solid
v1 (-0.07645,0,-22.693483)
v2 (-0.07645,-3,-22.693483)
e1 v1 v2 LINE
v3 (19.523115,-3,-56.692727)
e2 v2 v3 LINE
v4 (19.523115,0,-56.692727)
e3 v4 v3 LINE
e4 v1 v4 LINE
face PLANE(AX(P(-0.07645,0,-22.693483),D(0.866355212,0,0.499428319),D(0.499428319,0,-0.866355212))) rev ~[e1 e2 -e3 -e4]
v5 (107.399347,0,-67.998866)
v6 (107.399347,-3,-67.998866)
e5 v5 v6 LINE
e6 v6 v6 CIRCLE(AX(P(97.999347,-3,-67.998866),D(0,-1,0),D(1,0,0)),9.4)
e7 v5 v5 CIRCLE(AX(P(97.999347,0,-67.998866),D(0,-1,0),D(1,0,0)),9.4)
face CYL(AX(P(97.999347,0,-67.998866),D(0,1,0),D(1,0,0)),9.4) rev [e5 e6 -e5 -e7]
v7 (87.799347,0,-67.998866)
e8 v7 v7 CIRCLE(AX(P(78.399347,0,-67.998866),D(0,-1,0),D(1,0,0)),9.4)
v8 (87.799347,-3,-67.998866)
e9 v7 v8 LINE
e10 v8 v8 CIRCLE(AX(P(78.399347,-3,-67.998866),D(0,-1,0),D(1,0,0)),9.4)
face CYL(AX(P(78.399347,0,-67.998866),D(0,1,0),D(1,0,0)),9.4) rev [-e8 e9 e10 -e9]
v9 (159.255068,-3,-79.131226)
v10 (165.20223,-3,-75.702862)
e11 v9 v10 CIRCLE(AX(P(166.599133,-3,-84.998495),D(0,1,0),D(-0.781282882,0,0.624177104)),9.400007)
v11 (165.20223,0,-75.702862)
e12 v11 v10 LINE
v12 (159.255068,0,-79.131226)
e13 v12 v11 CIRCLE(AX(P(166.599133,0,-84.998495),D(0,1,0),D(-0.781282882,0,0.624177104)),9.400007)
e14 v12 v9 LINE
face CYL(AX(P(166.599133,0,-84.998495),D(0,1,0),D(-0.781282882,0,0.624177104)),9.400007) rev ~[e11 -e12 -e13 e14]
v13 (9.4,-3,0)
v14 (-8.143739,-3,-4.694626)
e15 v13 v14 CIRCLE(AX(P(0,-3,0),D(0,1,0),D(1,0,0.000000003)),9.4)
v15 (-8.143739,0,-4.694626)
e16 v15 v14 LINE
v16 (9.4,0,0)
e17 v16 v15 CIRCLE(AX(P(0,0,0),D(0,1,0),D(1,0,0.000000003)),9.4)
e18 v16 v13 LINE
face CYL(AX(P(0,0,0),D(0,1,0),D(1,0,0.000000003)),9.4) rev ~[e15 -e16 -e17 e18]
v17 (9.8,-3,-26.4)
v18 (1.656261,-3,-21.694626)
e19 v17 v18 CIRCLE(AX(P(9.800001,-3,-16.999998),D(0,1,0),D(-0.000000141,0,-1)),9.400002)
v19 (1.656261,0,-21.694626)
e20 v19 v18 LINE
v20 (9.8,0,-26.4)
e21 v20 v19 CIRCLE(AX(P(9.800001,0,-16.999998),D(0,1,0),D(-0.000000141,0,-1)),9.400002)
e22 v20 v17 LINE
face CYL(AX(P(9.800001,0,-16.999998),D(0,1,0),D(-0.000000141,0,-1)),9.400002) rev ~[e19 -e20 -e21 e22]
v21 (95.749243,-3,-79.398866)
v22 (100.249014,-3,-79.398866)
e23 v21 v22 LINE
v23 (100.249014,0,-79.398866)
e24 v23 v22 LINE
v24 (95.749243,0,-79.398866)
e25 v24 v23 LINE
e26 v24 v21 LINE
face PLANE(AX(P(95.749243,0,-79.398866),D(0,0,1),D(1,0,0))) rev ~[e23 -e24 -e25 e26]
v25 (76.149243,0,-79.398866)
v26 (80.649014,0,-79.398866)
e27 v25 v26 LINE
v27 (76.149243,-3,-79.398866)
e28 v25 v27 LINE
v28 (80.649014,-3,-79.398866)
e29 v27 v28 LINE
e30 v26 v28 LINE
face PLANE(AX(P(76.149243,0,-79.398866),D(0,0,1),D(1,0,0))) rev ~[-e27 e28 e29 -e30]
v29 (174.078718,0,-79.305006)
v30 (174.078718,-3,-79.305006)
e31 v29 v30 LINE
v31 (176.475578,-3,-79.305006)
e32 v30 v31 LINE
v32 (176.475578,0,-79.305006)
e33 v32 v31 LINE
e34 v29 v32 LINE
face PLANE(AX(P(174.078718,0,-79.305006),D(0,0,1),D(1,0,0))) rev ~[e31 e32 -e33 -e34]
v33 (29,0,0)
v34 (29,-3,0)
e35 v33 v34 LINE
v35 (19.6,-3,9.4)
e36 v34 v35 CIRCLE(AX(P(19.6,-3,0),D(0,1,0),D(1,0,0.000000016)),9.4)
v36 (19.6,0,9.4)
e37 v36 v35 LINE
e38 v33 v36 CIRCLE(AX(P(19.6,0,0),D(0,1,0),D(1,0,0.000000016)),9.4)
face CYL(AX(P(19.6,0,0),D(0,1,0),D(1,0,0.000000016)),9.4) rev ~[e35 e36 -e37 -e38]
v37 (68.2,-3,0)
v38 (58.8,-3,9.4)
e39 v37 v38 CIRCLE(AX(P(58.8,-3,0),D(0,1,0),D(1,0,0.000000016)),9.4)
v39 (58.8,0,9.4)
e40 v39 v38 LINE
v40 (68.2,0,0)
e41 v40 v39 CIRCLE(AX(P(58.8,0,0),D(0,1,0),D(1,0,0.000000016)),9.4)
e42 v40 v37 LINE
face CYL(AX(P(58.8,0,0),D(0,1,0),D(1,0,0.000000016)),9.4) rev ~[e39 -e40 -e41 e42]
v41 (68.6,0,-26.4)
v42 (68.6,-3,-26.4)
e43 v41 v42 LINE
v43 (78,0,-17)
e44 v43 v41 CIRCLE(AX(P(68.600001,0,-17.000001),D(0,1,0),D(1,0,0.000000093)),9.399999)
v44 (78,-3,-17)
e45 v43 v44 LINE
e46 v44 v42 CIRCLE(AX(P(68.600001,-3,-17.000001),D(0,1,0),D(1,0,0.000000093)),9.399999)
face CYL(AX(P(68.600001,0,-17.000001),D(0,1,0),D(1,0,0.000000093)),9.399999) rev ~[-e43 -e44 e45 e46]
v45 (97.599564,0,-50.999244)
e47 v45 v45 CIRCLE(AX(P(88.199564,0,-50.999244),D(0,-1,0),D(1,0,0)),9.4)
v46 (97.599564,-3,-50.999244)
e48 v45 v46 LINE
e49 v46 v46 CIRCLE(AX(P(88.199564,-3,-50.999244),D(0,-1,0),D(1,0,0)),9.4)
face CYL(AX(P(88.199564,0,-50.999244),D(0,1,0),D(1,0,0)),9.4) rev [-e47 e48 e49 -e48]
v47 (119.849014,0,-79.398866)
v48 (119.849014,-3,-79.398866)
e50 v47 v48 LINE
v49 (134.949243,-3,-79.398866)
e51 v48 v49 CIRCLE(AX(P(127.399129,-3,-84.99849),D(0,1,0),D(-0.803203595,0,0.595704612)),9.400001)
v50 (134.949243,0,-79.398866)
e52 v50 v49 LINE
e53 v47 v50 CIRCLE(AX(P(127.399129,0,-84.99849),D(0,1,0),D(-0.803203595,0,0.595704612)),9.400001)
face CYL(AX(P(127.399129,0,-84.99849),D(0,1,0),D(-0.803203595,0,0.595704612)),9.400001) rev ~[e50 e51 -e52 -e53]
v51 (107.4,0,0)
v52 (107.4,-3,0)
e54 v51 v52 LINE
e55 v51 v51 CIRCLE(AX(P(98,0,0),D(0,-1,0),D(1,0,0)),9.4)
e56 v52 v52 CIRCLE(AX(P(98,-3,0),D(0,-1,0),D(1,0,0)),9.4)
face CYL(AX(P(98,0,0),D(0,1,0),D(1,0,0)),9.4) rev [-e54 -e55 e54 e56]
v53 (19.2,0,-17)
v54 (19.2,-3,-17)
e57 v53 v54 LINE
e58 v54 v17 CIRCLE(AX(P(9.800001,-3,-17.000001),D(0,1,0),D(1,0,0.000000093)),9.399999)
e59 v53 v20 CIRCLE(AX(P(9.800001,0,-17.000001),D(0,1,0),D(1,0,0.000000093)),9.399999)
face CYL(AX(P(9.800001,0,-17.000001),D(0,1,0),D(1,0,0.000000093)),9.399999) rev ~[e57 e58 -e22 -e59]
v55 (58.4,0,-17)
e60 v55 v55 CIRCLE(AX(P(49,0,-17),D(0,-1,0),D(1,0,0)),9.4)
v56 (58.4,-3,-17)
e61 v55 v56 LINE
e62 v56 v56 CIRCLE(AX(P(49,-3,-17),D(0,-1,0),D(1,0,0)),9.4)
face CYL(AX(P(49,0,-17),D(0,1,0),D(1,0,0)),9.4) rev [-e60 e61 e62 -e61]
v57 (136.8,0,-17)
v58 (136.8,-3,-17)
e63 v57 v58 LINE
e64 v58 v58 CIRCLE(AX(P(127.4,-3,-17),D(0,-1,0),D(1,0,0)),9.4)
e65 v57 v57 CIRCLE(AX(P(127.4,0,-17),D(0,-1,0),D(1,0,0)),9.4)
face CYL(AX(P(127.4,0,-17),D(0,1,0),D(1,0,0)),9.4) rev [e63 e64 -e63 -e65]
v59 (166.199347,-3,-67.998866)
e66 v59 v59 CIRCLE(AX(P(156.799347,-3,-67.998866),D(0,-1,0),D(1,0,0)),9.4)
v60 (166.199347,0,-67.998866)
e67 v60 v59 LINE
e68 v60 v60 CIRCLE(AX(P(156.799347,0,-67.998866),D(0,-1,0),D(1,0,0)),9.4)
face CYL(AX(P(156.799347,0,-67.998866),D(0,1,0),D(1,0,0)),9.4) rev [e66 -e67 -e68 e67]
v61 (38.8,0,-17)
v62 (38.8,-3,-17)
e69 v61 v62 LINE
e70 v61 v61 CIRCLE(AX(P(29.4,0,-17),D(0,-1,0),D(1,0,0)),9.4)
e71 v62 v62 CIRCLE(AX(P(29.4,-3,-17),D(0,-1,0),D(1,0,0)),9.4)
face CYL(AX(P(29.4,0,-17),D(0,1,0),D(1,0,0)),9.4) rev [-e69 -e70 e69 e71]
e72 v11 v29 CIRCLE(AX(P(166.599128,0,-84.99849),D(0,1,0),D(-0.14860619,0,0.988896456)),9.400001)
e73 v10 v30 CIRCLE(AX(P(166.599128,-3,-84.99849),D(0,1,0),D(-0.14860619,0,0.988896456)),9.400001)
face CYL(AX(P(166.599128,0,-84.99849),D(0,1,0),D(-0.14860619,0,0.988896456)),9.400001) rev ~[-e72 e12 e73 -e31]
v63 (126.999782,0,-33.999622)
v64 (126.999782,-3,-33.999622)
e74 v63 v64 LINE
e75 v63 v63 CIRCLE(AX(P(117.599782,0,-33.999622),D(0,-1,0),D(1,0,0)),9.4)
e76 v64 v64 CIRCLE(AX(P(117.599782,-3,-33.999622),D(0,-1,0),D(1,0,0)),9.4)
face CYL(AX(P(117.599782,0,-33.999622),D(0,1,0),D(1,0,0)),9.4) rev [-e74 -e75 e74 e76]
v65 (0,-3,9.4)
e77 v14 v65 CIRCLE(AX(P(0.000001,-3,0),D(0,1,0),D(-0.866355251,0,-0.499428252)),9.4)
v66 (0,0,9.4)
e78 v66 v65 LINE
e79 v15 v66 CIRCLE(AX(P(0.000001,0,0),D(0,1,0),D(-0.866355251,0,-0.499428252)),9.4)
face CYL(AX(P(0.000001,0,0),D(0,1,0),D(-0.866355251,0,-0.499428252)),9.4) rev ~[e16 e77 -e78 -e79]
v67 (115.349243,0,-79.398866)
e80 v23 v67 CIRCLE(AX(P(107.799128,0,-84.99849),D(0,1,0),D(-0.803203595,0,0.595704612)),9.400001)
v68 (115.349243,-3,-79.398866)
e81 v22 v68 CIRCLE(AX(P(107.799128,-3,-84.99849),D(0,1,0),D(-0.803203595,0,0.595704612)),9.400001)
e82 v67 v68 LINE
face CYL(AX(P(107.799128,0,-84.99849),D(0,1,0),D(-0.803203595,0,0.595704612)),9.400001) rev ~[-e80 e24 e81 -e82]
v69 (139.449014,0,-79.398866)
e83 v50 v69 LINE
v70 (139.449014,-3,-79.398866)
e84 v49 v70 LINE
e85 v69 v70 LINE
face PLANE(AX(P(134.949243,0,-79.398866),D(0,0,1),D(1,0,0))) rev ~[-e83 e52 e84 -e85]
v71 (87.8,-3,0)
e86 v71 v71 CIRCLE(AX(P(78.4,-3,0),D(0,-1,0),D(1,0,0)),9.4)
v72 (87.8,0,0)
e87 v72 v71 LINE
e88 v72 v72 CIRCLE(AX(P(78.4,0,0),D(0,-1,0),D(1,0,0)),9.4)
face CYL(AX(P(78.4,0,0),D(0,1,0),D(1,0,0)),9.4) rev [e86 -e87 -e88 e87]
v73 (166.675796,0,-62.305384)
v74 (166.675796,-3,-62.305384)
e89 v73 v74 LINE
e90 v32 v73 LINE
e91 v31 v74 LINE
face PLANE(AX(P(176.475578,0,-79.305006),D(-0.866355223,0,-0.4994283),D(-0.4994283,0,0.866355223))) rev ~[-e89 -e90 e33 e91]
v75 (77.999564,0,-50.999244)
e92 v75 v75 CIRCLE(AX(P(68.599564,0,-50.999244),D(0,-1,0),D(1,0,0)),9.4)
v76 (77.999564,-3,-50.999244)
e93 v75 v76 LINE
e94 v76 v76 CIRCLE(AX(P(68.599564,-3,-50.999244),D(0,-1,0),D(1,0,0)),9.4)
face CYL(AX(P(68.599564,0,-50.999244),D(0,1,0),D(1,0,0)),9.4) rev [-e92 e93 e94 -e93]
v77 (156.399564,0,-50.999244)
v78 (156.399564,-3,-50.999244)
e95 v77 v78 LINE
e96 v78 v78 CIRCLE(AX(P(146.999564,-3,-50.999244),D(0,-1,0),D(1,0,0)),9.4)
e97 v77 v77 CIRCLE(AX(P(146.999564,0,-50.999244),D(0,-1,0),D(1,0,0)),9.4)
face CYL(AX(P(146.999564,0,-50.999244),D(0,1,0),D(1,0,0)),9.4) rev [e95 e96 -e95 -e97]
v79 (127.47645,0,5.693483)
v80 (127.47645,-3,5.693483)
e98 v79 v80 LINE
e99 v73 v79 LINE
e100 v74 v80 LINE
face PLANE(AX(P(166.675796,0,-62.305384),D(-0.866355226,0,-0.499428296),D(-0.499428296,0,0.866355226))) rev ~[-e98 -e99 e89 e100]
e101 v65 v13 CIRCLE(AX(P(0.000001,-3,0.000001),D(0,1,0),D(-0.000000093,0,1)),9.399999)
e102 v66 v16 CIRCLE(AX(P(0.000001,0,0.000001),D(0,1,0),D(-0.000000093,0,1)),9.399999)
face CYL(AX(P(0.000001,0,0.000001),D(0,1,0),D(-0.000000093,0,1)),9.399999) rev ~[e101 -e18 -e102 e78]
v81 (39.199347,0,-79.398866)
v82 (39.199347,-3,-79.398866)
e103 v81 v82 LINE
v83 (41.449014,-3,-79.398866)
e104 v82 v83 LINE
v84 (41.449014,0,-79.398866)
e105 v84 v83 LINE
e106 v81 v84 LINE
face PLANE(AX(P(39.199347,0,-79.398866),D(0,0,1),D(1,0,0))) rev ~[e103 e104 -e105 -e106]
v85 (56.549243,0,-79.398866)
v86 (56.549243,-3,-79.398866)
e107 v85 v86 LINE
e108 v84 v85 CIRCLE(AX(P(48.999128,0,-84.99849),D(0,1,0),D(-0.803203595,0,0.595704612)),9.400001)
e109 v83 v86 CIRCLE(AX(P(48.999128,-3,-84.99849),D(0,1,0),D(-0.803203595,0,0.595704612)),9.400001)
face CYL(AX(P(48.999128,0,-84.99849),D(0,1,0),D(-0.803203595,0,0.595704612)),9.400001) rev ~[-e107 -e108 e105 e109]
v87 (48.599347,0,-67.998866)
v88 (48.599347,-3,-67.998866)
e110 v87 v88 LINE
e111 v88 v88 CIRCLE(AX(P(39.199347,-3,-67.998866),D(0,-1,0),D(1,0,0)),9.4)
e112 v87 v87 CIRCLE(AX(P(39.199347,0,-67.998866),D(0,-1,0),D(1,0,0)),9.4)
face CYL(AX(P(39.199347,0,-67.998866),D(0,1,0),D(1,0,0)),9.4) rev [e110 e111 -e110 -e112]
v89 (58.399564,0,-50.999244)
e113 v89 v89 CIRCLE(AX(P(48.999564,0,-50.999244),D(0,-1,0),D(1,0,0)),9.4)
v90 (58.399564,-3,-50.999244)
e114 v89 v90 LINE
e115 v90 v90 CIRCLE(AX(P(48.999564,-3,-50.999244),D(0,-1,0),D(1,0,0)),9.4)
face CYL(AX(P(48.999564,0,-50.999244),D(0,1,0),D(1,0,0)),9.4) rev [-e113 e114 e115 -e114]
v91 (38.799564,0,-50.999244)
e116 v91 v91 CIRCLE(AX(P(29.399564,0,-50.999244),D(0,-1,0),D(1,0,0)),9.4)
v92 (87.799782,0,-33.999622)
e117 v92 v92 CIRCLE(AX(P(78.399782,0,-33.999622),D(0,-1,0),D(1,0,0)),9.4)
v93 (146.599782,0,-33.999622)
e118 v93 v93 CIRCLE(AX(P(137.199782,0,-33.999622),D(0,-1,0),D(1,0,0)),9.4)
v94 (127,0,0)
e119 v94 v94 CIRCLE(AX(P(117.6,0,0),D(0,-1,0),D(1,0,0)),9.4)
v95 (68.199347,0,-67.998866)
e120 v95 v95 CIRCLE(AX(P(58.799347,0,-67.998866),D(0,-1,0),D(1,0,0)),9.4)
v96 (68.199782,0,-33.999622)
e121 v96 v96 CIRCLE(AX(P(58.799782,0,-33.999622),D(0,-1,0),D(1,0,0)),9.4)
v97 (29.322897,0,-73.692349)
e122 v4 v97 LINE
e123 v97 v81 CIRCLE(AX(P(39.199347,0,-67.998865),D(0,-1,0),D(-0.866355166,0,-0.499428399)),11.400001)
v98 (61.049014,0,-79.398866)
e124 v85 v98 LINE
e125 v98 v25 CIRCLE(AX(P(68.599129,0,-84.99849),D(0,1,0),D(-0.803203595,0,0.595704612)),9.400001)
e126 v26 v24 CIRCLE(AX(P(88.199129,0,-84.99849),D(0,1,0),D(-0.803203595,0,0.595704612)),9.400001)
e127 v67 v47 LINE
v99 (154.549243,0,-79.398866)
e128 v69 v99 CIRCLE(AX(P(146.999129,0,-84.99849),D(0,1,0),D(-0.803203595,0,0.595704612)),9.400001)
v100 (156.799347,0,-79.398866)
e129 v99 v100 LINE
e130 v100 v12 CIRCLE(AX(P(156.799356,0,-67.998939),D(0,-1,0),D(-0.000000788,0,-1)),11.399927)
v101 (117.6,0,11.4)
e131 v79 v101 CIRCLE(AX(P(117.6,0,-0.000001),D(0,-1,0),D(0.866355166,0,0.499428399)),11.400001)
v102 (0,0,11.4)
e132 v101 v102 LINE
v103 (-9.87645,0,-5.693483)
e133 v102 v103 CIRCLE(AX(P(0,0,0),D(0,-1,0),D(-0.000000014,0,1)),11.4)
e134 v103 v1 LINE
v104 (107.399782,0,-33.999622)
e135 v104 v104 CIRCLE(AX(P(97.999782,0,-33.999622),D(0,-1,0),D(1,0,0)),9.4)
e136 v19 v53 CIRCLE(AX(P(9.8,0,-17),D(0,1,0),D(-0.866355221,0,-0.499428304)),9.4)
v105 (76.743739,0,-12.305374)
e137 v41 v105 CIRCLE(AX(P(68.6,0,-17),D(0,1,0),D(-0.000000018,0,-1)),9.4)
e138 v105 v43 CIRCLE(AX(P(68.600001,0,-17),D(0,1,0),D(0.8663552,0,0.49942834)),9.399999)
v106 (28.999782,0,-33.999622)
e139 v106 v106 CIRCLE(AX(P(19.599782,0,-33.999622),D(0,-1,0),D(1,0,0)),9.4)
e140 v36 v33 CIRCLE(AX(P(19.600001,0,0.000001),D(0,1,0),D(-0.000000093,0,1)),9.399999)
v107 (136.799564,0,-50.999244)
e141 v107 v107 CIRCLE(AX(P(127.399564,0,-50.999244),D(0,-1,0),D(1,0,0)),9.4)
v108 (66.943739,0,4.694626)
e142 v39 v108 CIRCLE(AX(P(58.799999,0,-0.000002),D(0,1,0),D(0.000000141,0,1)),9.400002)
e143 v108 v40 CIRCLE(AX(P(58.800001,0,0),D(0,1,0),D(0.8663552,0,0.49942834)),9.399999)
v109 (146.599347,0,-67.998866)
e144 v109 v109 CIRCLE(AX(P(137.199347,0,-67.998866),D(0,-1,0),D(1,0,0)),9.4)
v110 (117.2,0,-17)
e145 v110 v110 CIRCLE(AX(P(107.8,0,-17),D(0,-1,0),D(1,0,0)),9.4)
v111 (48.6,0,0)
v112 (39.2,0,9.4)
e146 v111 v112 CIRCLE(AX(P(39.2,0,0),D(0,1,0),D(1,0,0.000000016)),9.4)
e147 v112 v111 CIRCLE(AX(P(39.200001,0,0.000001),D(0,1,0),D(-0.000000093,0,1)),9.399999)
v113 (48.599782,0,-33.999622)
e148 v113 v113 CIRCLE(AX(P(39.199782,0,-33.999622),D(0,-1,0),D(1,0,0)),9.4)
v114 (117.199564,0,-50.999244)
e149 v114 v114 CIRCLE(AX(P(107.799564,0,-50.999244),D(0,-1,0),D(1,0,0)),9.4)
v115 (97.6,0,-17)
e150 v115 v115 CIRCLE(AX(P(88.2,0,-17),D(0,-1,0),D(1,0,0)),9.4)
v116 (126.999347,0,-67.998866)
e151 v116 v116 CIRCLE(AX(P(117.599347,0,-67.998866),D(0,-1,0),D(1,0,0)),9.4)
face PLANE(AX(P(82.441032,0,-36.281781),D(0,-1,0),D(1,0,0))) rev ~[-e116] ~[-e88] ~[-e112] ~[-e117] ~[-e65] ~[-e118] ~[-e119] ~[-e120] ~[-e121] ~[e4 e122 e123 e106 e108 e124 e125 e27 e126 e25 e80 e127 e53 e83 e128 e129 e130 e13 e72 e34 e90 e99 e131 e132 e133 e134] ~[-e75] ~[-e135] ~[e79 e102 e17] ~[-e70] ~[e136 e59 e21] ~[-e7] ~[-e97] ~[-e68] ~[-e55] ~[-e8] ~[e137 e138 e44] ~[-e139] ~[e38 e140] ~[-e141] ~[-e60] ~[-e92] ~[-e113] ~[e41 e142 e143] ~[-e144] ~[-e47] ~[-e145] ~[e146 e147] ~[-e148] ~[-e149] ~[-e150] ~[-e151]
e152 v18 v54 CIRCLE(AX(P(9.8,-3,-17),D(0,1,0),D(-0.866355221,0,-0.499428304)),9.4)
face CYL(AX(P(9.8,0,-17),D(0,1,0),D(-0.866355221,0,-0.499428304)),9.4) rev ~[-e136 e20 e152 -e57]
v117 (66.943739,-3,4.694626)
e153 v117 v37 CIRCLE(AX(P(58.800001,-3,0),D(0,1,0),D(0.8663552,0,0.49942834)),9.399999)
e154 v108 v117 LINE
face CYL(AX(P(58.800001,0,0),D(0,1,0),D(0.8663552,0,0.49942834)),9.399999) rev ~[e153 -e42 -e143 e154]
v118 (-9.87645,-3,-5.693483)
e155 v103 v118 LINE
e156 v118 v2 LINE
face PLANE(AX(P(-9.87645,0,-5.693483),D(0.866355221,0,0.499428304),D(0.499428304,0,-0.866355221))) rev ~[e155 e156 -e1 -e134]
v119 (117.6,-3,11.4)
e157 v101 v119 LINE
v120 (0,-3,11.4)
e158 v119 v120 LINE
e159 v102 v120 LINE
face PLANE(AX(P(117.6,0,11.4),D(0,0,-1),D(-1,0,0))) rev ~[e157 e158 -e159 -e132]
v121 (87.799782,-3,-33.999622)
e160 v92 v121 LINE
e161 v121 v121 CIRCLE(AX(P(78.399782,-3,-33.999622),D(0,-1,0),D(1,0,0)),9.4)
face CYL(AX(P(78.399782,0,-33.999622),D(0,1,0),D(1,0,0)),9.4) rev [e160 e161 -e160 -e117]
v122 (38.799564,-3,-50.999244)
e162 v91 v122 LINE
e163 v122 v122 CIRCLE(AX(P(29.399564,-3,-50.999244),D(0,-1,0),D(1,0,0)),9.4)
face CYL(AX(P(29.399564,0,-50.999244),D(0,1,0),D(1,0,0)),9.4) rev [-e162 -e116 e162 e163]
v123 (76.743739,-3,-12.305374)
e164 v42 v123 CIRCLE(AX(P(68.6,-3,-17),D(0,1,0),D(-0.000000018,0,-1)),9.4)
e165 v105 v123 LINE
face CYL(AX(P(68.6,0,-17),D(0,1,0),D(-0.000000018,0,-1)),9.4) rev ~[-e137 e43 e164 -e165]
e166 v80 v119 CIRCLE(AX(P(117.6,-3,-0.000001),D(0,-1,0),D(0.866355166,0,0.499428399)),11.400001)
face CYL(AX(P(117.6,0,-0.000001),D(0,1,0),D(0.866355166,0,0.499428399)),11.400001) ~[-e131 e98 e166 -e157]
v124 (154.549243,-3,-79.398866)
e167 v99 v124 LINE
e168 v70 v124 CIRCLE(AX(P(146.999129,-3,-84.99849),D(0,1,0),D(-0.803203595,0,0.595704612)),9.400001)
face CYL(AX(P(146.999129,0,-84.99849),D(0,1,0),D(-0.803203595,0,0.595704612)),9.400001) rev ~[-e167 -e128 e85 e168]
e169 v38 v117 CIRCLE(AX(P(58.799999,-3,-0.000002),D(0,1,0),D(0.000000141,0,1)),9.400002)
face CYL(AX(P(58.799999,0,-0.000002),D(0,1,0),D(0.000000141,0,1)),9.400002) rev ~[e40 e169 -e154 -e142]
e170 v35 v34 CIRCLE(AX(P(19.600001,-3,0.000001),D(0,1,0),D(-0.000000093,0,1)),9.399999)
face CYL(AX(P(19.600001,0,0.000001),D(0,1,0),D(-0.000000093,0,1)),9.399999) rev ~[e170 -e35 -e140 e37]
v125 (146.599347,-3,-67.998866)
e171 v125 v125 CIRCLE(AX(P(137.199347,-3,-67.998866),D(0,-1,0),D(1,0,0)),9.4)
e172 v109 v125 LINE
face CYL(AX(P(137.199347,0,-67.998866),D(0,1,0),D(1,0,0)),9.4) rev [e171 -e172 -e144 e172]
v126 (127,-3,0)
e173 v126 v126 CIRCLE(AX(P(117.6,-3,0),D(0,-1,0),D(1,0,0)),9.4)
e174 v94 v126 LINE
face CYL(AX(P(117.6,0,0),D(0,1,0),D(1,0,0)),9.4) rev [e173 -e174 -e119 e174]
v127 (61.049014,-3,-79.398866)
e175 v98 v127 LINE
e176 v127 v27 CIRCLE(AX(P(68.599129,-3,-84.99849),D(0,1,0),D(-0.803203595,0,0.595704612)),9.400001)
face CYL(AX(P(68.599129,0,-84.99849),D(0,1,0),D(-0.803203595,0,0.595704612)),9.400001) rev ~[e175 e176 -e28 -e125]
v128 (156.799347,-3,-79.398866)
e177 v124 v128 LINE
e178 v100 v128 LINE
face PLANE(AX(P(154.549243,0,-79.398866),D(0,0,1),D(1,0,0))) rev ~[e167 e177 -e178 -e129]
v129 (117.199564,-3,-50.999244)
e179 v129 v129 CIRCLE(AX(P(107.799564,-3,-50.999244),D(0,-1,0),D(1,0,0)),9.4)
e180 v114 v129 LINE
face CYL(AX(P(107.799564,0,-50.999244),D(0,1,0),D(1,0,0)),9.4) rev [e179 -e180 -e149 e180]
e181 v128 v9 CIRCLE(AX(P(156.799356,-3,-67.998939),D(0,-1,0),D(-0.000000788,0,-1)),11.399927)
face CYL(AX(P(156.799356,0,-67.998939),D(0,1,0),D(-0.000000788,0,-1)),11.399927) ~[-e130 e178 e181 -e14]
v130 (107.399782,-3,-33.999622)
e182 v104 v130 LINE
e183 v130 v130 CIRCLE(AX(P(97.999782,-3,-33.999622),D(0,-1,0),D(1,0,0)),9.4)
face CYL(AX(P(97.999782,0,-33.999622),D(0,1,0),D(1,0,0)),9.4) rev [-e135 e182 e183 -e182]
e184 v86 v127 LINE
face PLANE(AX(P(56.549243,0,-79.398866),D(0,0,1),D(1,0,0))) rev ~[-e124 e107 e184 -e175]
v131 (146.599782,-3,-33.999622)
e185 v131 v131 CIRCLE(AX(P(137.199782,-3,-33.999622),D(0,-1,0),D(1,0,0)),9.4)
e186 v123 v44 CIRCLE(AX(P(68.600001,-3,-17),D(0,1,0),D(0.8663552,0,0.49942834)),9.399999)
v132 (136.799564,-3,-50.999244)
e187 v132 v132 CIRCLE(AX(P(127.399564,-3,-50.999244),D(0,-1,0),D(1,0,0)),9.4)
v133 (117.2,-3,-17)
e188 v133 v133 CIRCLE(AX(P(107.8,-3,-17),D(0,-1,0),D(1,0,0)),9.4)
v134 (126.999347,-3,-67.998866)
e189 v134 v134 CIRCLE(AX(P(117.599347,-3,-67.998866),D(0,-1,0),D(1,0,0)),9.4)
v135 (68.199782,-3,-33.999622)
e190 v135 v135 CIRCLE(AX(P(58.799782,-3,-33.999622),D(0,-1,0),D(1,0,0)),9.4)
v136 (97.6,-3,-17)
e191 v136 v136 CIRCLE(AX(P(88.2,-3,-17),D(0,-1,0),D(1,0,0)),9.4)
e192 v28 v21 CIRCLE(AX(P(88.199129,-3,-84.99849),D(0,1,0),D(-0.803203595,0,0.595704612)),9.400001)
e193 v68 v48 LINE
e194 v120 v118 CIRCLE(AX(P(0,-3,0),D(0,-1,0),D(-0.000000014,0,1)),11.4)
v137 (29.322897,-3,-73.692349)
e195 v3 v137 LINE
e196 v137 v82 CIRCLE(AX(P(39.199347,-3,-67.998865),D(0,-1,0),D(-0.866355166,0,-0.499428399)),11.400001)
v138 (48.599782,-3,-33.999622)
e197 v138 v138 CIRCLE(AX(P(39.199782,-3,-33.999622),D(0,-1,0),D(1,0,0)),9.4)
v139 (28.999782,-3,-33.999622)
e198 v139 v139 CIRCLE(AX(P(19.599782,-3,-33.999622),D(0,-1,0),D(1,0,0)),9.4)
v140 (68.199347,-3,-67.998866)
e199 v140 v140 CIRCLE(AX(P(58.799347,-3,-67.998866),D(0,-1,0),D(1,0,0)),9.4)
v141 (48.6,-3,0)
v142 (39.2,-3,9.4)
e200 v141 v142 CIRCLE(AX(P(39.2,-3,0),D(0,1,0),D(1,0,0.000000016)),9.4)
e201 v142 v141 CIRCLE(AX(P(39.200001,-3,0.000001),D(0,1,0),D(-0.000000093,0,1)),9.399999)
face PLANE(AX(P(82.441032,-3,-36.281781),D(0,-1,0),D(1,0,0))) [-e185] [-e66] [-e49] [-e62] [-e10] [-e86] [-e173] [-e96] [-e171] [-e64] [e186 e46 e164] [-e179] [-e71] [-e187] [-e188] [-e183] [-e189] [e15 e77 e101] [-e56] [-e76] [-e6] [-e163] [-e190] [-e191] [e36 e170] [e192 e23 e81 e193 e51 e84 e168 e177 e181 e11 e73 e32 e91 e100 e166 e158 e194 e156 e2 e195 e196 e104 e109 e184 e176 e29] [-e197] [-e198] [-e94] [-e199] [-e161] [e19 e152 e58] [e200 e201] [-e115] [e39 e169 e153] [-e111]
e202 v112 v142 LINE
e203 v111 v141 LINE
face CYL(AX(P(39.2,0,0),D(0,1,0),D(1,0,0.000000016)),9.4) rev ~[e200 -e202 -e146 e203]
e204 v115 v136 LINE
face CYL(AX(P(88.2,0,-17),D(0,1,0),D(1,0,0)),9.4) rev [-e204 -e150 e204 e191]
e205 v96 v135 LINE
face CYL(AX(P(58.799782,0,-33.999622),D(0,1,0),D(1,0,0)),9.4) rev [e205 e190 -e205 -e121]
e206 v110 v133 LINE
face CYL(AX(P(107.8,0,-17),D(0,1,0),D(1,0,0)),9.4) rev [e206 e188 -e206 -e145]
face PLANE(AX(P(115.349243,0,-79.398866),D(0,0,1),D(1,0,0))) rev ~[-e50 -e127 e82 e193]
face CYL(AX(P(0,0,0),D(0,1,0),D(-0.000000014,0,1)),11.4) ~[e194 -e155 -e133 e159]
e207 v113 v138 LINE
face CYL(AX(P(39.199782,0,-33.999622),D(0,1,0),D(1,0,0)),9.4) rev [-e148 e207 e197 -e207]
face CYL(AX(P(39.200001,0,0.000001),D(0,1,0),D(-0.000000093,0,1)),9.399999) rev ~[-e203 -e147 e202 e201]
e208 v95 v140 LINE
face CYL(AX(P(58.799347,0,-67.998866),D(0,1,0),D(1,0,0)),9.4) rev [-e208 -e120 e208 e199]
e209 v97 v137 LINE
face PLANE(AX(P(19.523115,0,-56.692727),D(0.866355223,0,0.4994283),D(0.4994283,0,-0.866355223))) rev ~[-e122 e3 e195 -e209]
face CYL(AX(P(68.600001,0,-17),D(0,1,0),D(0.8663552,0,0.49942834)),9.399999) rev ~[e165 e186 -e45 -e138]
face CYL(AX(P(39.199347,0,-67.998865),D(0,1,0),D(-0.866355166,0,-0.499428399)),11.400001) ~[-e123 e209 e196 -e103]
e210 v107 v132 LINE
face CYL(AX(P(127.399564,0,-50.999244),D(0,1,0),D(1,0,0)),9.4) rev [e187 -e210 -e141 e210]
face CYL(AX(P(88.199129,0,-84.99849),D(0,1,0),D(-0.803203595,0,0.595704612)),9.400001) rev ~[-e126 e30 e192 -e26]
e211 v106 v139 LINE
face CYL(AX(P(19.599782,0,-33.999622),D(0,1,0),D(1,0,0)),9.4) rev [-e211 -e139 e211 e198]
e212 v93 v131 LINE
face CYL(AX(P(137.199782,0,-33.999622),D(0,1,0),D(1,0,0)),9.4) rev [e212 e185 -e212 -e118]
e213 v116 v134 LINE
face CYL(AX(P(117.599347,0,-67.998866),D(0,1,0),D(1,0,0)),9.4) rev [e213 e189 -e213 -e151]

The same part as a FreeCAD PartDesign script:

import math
import FreeCAD as App
import Part
import Sketcher
from FreeCAD import Vector

doc = App.newDocument("Part")
body = doc.addObject("PartDesign::Body", "Body")

sketch1 = doc.addObject("Sketcher::SketchObject", "Sketch")
body.addObject(sketch1)
sketch1.AttachmentSupport = (doc.XZ_Plane, [""])
sketch1.MapMode = "FlatFace"
sketch1.addGeometry([
    Part.ArcOfCircle(Part.Circle(Vector(0, 0, 0), Vector(0, 0, 1), 11.4), math.radians(90), math.radians(210)),
    Part.LineSegment(Vector(-9.9, -5.7, 0), Vector(-0.1, -22.7, 0)),
    Part.LineSegment(Vector(-0.1, -22.7, 0), Vector(19.5, -56.7, 0)),
    Part.LineSegment(Vector(19.5, -56.7, 0), Vector(29.3, -73.7, 0)),
    Part.ArcOfCircle(Part.Circle(Vector(39.2, -68, 0), Vector(0, 0, 1), 11.4), math.radians(-150), math.radians(-90)),
    Part.LineSegment(Vector(39.2, -79.4, 0), Vector(41.4, -79.4, 0)),
    Part.ArcOfCircle(Part.Circle(Vector(49, -85, 0), Vector(0, 0, 1), 9.4), math.radians(37), math.radians(143)),
    Part.LineSegment(Vector(56.5, -79.4, 0), Vector(61, -79.4, 0)),
    Part.ArcOfCircle(Part.Circle(Vector(68.6, -85, 0), Vector(0, 0, 1), 9.4), math.radians(37), math.radians(143)),
    Part.LineSegment(Vector(76.1, -79.4, 0), Vector(80.6, -79.4, 0)),
    Part.ArcOfCircle(Part.Circle(Vector(88.2, -85, 0), Vector(0, 0, 1), 9.4), math.radians(37), math.radians(143)),
    Part.LineSegment(Vector(95.7, -79.4, 0), Vector(100.2, -79.4, 0)),
    Part.ArcOfCircle(Part.Circle(Vector(107.8, -85, 0), Vector(0, 0, 1), 9.4), math.radians(37), math.radians(143)),
    Part.LineSegment(Vector(115.3, -79.4, 0), Vector(119.8, -79.4, 0)),
    Part.ArcOfCircle(Part.Circle(Vector(127.4, -85, 0), Vector(0, 0, 1), 9.4), math.radians(37), math.radians(143)),
    Part.LineSegment(Vector(134.9, -79.4, 0), Vector(139.4, -79.4, 0)),
    Part.ArcOfCircle(Part.Circle(Vector(147, -85, 0), Vector(0, 0, 1), 9.4), math.radians(37), math.radians(143)),
    Part.LineSegment(Vector(154.5, -79.4, 0), Vector(156.8, -79.4, 0)),
    Part.ArcOfCircle(Part.Circle(Vector(156.8, -68, 0), Vector(0, 0, 1), 11.4), math.radians(-90), math.radians(-77.56)),
    Part.ArcOfCircle(Part.Circle(Vector(166.6, -85, 0), Vector(0, 0, 1), 9.4), math.radians(99), math.radians(141)),
    Part.ArcOfCircle(Part.Circle(Vector(166.6, -85, 0), Vector(0, 0, 1), 9.4), math.radians(37), math.radians(99)),
    Part.LineSegment(Vector(174.1, -79.3, 0), Vector(176.5, -79.3, 0)),
    Part.LineSegment(Vector(176.5, -79.3, 0), Vector(166.7, -62.3, 0)),
    Part.LineSegment(Vector(166.7, -62.3, 0), Vector(127.5, 5.7, 0)),
    Part.ArcOfCircle(Part.Circle(Vector(117.6, 0, 0), Vector(0, 0, 1), 11.4), math.radians(30), math.radians(90)),
    Part.LineSegment(Vector(117.6, 11.4, 0), Vector(0, 11.4, 0)),
    Part.Circle(Vector(39.2, -68, 0), Vector(0, 0, 1), 9.4),
    Part.Circle(Vector(58.8, -68, 0), Vector(0, 0, 1), 9.4),
    Part.Circle(Vector(78.4, -68, 0), Vector(0, 0, 1), 9.4),
    Part.Circle(Vector(29.4, -51, 0), Vector(0, 0, 1), 9.4),
    Part.Circle(Vector(19.6, -34, 0), Vector(0, 0, 1), 9.4),
    Part.Circle(Vector(49, -51, 0), Vector(0, 0, 1), 9.4),
    Part.Circle(Vector(68.6, -51, 0), Vector(0, 0, 1), 9.4),
    Part.Circle(Vector(39.2, -34, 0), Vector(0, 0, 1), 9.4),
    Part.Circle(Vector(58.8, -34, 0), Vector(0, 0, 1), 9.4),
    Part.Circle(Vector(98, -68, 0), Vector(0, 0, 1), 9.4),
    Part.Circle(Vector(117.6, -68, 0), Vector(0, 0, 1), 9.4),
    Part.Circle(Vector(137.2, -68, 0), Vector(0, 0, 1), 9.4),
    Part.Circle(Vector(156.8, -68, 0), Vector(0, 0, 1), 9.4),
    Part.Circle(Vector(88.2, -51, 0), Vector(0, 0, 1), 9.4),
    Part.Circle(Vector(107.8, -51, 0), Vector(0, 0, 1), 9.4),
    Part.Circle(Vector(78.4, -34, 0), Vector(0, 0, 1), 9.4),
    Part.Circle(Vector(98, -34, 0), Vector(0, 0, 1), 9.4),
    Part.Circle(Vector(117.6, -34, 0), Vector(0, 0, 1), 9.4),
    Part.Circle(Vector(127.4, -51, 0), Vector(0, 0, 1), 9.4),
    Part.Circle(Vector(147, -51, 0), Vector(0, 0, 1), 9.4),
    Part.Circle(Vector(137.2, -34, 0), Vector(0, 0, 1), 9.4),
    Part.ArcOfCircle(Part.Circle(Vector(9.8, -17, 0), Vector(0, 0, 1), 9.4), math.radians(-90), math.radians(0)),
    Part.ArcOfCircle(Part.Circle(Vector(9.8, -17, 0), Vector(0, 0, 1), 9.4), math.radians(-150), math.radians(-90)),
    Part.ArcOfCircle(Part.Circle(Vector(9.8, -17, 0), Vector(0, 0, 1), 9.4), math.radians(0), math.radians(210)),
    Part.Circle(Vector(29.4, -17, 0), Vector(0, 0, 1), 9.4),
    Part.Circle(Vector(49, -17, 0), Vector(0, 0, 1), 9.4),
    Part.ArcOfCircle(Part.Circle(Vector(68.6, -17, 0), Vector(0, 0, 1), 9.4), math.radians(30), math.radians(270)),
    Part.ArcOfCircle(Part.Circle(Vector(68.6, -17, 0), Vector(0, 0, 1), 9.4), math.radians(0), math.radians(30)),
    Part.ArcOfCircle(Part.Circle(Vector(68.6, -17, 0), Vector(0, 0, 1), 9.4), math.radians(-90), math.radians(0)),
    Part.ArcOfCircle(Part.Circle(Vector(0, 0, 0), Vector(0, 0, 1), 9.4), math.radians(90), math.radians(210)),
    Part.ArcOfCircle(Part.Circle(Vector(0, 0, 0), Vector(0, 0, 1), 9.4), math.radians(0), math.radians(90)),
    Part.ArcOfCircle(Part.Circle(Vector(0, 0, 0), Vector(0, 0, 1), 9.4), math.radians(-150), math.radians(0)),
    Part.ArcOfCircle(Part.Circle(Vector(19.6, 0, 0), Vector(0, 0, 1), 9.4), math.radians(0), math.radians(90)),
    Part.ArcOfCircle(Part.Circle(Vector(19.6, 0, 0), Vector(0, 0, 1), 9.4), math.radians(90), math.radians(360)),
    Part.ArcOfCircle(Part.Circle(Vector(39.2, 0, 0), Vector(0, 0, 1), 9.4), math.radians(0), math.radians(90)),
    Part.ArcOfCircle(Part.Circle(Vector(39.2, 0, 0), Vector(0, 0, 1), 9.4), math.radians(90), math.radians(360)),
    Part.ArcOfCircle(Part.Circle(Vector(58.8, 0, 0), Vector(0, 0, 1), 9.4), math.radians(0), math.radians(30)),
    Part.ArcOfCircle(Part.Circle(Vector(58.8, 0, 0), Vector(0, 0, 1), 9.4), math.radians(90), math.radians(360)),
    Part.ArcOfCircle(Part.Circle(Vector(58.8, 0, 0), Vector(0, 0, 1), 9.4), math.radians(30), math.radians(90)),
    Part.Circle(Vector(88.2, -17, 0), Vector(0, 0, 1), 9.4),
    Part.Circle(Vector(107.8, -17, 0), Vector(0, 0, 1), 9.4),
    Part.Circle(Vector(127.4, -17, 0), Vector(0, 0, 1), 9.4),
    Part.Circle(Vector(78.4, 0, 0), Vector(0, 0, 1), 9.4),
    Part.Circle(Vector(98, 0, 0), Vector(0, 0, 1), 9.4),
    Part.Circle(Vector(117.6, 0, 0), Vector(0, 0, 1), 9.4),
], False)
sketch1.addConstraint([
    Sketcher.Constraint("Tangent", 0, 2, 1, 1),
    Sketcher.Constraint("Coincident", 1, 2, 2, 1),
    Sketcher.Constraint("Coincident", 2, 2, 3, 1),
    Sketcher.Constraint("Tangent", 3, 2, 4, 1),
    Sketcher.Constraint("Tangent", 4, 2, 5, 1),
    Sketcher.Constraint("Coincident", 5, 2, 6, 2),
    Sketcher.Constraint("Coincident", 6, 1, 7, 1),
    Sketcher.Constraint("Coincident", 7, 2, 8, 2),
    Sketcher.Constraint("Coincident", 8, 1, 9, 1),
    Sketcher.Constraint("Coincident", 9, 2, 10, 2),
    Sketcher.Constraint("Coincident", 10, 1, 11, 1),
    Sketcher.Constraint("Coincident", 11, 2, 12, 2),
    Sketcher.Constraint("Coincident", 12, 1, 13, 1),
    Sketcher.Constraint("Coincident", 13, 2, 14, 2),
    Sketcher.Constraint("Coincident", 14, 1, 15, 1),
    Sketcher.Constraint("Coincident", 15, 2, 16, 2),
    Sketcher.Constraint("Coincident", 16, 1, 17, 1),
    Sketcher.Constraint("Tangent", 17, 2, 18, 1),
    Sketcher.Constraint("Coincident", 18, 2, 19, 2),
    Sketcher.Constraint("Tangent", 19, 1, 20, 2),
    Sketcher.Constraint("Coincident", 20, 1, 21, 1),
    Sketcher.Constraint("Coincident", 21, 2, 22, 1),
    Sketcher.Constraint("Coincident", 22, 2, 23, 1),
    Sketcher.Constraint("Tangent", 23, 2, 24, 1),
    Sketcher.Constraint("Tangent", 24, 2, 25, 1),
    Sketcher.Constraint("Tangent", 25, 2, 0, 1),
    Sketcher.Constraint("Tangent", 47, 1, 48, 2),
    Sketcher.Constraint("Tangent", 48, 1, 49, 2),
    Sketcher.Constraint("Tangent", 49, 1, 47, 2),
    Sketcher.Constraint("Tangent", 52, 1, 53, 2),
    Sketcher.Constraint("Tangent", 53, 1, 54, 2),
    Sketcher.Constraint("Tangent", 54, 1, 52, 2),
    Sketcher.Constraint("Tangent", 55, 1, 56, 2),
    Sketcher.Constraint("Tangent", 56, 1, 57, 2),
    Sketcher.Constraint("Tangent", 57, 1, 55, 2),
    Sketcher.Constraint("Tangent", 58, 1, 59, 2),
    Sketcher.Constraint("Coincident", 59, 1, 58, 2),
    Sketcher.Constraint("Tangent", 60, 1, 61, 2),
    Sketcher.Constraint("Coincident", 61, 1, 60, 2),
    Sketcher.Constraint("Tangent", 62, 1, 63, 2),
    Sketcher.Constraint("Tangent", 63, 1, 64, 2),
    Sketcher.Constraint("Tangent", 64, 1, 62, 2),
    Sketcher.Constraint("Horizontal", 5),
    Sketcher.Constraint("Horizontal", 7),
    Sketcher.Constraint("Horizontal", 9),
    Sketcher.Constraint("Horizontal", 11),
    Sketcher.Constraint("Horizontal", 13),
    Sketcher.Constraint("Horizontal", 15),
    Sketcher.Constraint("Horizontal", 17),
    Sketcher.Constraint("Horizontal", 21),
    Sketcher.Constraint("Horizontal", 25),
    Sketcher.Constraint("Coincident", 0, 3, -1, 1),
    Sketcher.Constraint("Coincident", 55, 3, -1, 1),
    Sketcher.Constraint("Coincident", 26, 3, 4, 3),
    Sketcher.Constraint("Coincident", 70, 3, 24, 3),
    Sketcher.Constraint("Equal", 0, 4),
    Sketcher.Constraint("Equal", 6, 8),
    Sketcher.Constraint("Equal", 8, 10),
    Sketcher.Constraint("Equal", 10, 12),
    Sketcher.Constraint("Equal", 12, 14),
    Sketcher.Constraint("Equal", 14, 16),
    Sketcher.Constraint("Equal", 16, 20),
    Sketcher.Constraint("Equal", 4, 24),
    Sketcher.Constraint("Equal", 20, 26),
    Sketcher.Constraint("Equal", 26, 27),
    Sketcher.Constraint("Equal", 27, 28),
    Sketcher.Constraint("Equal", 28, 29),
    Sketcher.Constraint("Equal", 29, 30),
    Sketcher.Constraint("Equal", 30, 31),
    Sketcher.Constraint("Equal", 31, 32),
    Sketcher.Constraint("Equal", 32, 33),
    Sketcher.Constraint("Equal", 33, 34),
    Sketcher.Constraint("Equal", 34, 35),
    Sketcher.Constraint("Equal", 35, 36),
    Sketcher.Constraint("Equal", 36, 37),
    Sketcher.Constraint("Equal", 37, 38),
    Sketcher.Constraint("Equal", 38, 39),
    Sketcher.Constraint("Equal", 39, 40),
    Sketcher.Constraint("Equal", 40, 41),
    Sketcher.Constraint("Equal", 41, 42),
    Sketcher.Constraint("Equal", 42, 43),
    Sketcher.Constraint("Equal", 43, 44),
    Sketcher.Constraint("Equal", 44, 45),
    Sketcher.Constraint("Equal", 45, 46),
    Sketcher.Constraint("Equal", 46, 47),
    Sketcher.Constraint("Equal", 49, 50),
    Sketcher.Constraint("Equal", 50, 51),
    Sketcher.Constraint("Equal", 51, 52),
    Sketcher.Constraint("Equal", 54, 55),
    Sketcher.Constraint("Equal", 57, 58),
    Sketcher.Constraint("Equal", 59, 60),
    Sketcher.Constraint("Equal", 61, 62),
    Sketcher.Constraint("Equal", 63, 65),
    Sketcher.Constraint("Equal", 65, 66),
    Sketcher.Constraint("Equal", 66, 67),
    Sketcher.Constraint("Equal", 67, 68),
    Sketcher.Constraint("Equal", 68, 69),
    Sketcher.Constraint("Equal", 69, 70),
    Sketcher.Constraint("PointOnObject", 58, 3, -1),
    Sketcher.Constraint("PointOnObject", 60, 3, -1),
    Sketcher.Constraint("PointOnObject", 62, 3, -1),
    Sketcher.Constraint("PointOnObject", 68, 3, -1),
    Sketcher.Constraint("PointOnObject", 69, 3, -1),
    Sketcher.Constraint("PointOnObject", 55, 1, -2),
    Sketcher.Constraint("PointOnObject", 56, 1, -1),
    Sketcher.Constraint("PointOnObject", 58, 1, -1),
    Sketcher.Constraint("PointOnObject", 60, 1, -1),
    Sketcher.Constraint("PointOnObject", 62, 1, -1),
    Sketcher.Constraint("Parallel", 1, 2),
    Sketcher.Constraint("Parallel", 2, 3),
    Sketcher.Constraint("Parallel", 3, 22),
    Sketcher.Constraint("Parallel", 22, 23),
    Sketcher.Constraint("Horizontal", 6, 3, 8, 3),
    Sketcher.Constraint("Horizontal", 8, 3, 10, 3),
    Sketcher.Constraint("Horizontal", 10, 3, 12, 3),
    Sketcher.Constraint("Horizontal", 12, 3, 14, 3),
    Sketcher.Constraint("Horizontal", 14, 3, 16, 3),
    Sketcher.Constraint("Horizontal", 16, 3, 20, 3),
    Sketcher.Constraint("Horizontal", 26, 3, 27, 3),
    Sketcher.Constraint("Horizontal", 27, 3, 28, 3),
    Sketcher.Constraint("Horizontal", 29, 3, 31, 3),
    Sketcher.Constraint("Horizontal", 31, 3, 32, 3),
    Sketcher.Constraint("Horizontal", 30, 3, 33, 3),
    Sketcher.Constraint("Horizontal", 33, 3, 34, 3),
    Sketcher.Constraint("Horizontal", 28, 3, 35, 3),
    Sketcher.Constraint("Horizontal", 35, 3, 36, 3),
    Sketcher.Constraint("Horizontal", 36, 3, 37, 3),
    Sketcher.Constraint("Horizontal", 37, 3, 38, 3),
    Sketcher.Constraint("Horizontal", 32, 3, 39, 3),
    Sketcher.Constraint("Horizontal", 39, 3, 40, 3),
    Sketcher.Constraint("Horizontal", 34, 3, 41, 3),
    Sketcher.Constraint("Horizontal", 41, 3, 42, 3),
    Sketcher.Constraint("Horizontal", 42, 3, 43, 3),
    Sketcher.Constraint("Horizontal", 40, 3, 44, 3),
    Sketcher.Constraint("Horizontal", 44, 3, 45, 3),
    Sketcher.Constraint("Horizontal", 43, 3, 46, 3),
    Sketcher.Constraint("Horizontal", 49, 3, 50, 3),
    Sketcher.Constraint("Horizontal", 50, 3, 51, 3),
    Sketcher.Constraint("Horizontal", 51, 3, 52, 3),
    Sketcher.Constraint("Horizontal", 54, 3, 65, 3),
    Sketcher.Constraint("Horizontal", 65, 3, 66, 3),
    Sketcher.Constraint("Horizontal", 66, 3, 67, 3),
    Sketcher.Constraint("Horizontal", 5, 2, 6, 1),
    Sketcher.Constraint("Horizontal", 7, 2, 8, 1),
    Sketcher.Constraint("Horizontal", 9, 2, 10, 1),
    Sketcher.Constraint("Horizontal", 11, 2, 12, 1),
    Sketcher.Constraint("Horizontal", 13, 2, 14, 1),
    Sketcher.Constraint("Horizontal", 15, 2, 16, 1),
    Sketcher.Constraint("Horizontal", 67, 3, 49, 1),
    Sketcher.Constraint("Horizontal", 49, 1, 53, 1),
    Sketcher.Constraint("Vertical", 38, 3, 17, 2),
    Sketcher.Constraint("Vertical", 49, 3, 47, 1),
    Sketcher.Constraint("Vertical", 53, 3, 54, 1),
    Sketcher.Constraint("Vertical", 58, 3, 59, 1),
    Sketcher.Constraint("Vertical", 60, 3, 61, 1),
    Sketcher.Constraint("Vertical", 64, 3, 63, 1),
    Sketcher.Constraint("Equal", 7, 9),
    Sketcher.Constraint("Equal", 9, 11),
    Sketcher.Constraint("Equal", 11, 13),
    Sketcher.Constraint("Equal", 13, 15),
    Sketcher.Constraint("Equal", 3, 22),
    Sketcher.Constraint("Diameter", 26, 18.8),
    Sketcher.Constraint("Radius", 0, 11.4),
    Sketcher.Constraint("DistanceX", 25, 2, 25, 1, 117.6),
    Sketcher.Constraint("DistanceY", 47, 3, -1, 1, 17.000001),
    Sketcher.Constraint("DistanceX", -1, 1, 51, 3, 49.0),
    Sketcher.Constraint("DistanceX", -1, 1, 69, 3, 98.0),
    Sketcher.Constraint("DistanceX", -1, 1, 53, 1, 78.0),
    Sketcher.Constraint("DistanceX", -1, 1, 58, 1, 29.0),
    Sketcher.Constraint("DistanceX", -1, 1, 47, 3, 9.800001),
    Sketcher.Constraint("DistanceX", -1, 1, 50, 3, 29.4),
    Sketcher.Constraint("DistanceX", -1, 1, 60, 3, 39.200001),
    Sketcher.Constraint("DistanceX", -1, 1, 62, 3, 58.800001),
    Sketcher.Constraint("DistanceX", -1, 1, 65, 3, 88.2),
    Sketcher.Constraint("DistanceX", -1, 1, 66, 3, 107.8),
    Sketcher.Constraint("DistanceX", -1, 1, 67, 3, 127.4),
    Sketcher.Constraint("DistanceX", -1, 1, 68, 3, 78.4),
    Sketcher.Constraint("Distance", 2, 39.244),
    Sketcher.Constraint("Distance", 3, 19.622),
    Sketcher.Constraint("Radius", 18, 11.399927),
    Sketcher.Constraint("Radius", 19, 9.400007),
    Sketcher.Constraint("DistanceX", 7, 1, 7, 2, 4.499771),
    Sketcher.Constraint("DistanceX", 21, 1, 21, 2, 2.39686),
    Sketcher.Constraint("DistanceX", 5, 1, 5, 2, 2.249667),
    Sketcher.Constraint("DistanceX", 17, 1, 17, 2, 2.250104),
    Sketcher.Constraint("DistanceX", -1, 1, 6, 3, 48.999128),
    Sketcher.Constraint("DistanceY", 6, 3, -1, 1, 84.99849),
    Sketcher.Constraint("DistanceX", -1, 1, 8, 3, 68.599129),
    Sketcher.Constraint("DistanceX", -1, 1, 20, 3, 166.599128),
    Sketcher.Constraint("DistanceX", -1, 1, 41, 3, 78.399782),
    Sketcher.Constraint("DistanceX", -1, 1, 42, 3, 97.999782),
    Sketcher.Constraint("DistanceX", -1, 1, 46, 3, 137.199782),
    Sketcher.Constraint("DistanceX", -1, 1, 19, 1, 165.20223),
    Sketcher.Constraint("DistanceX", -1, 1, 48, 1, 1.656261),
    Sketcher.Constraint("DistanceX", -1, 1, 52, 1, 76.743739),
    Sketcher.Constraint("DistanceX", 57, 1, -1, 1, 8.143739),
    Sketcher.Constraint("DistanceX", -1, 1, 64, 1, 66.943739),
    Sketcher.Constraint("DistanceX", -1, 1, 27, 3, 58.799347),
    Sketcher.Constraint("DistanceX", -1, 1, 28, 3, 78.399347),
    Sketcher.Constraint("DistanceX", -1, 1, 29, 3, 29.399564),
    Sketcher.Constraint("DistanceY", 29, 3, -1, 1, 50.999244),
    Sketcher.Constraint("DistanceX", -1, 1, 30, 3, 19.599782),
    Sketcher.Constraint("DistanceY", 30, 3, -1, 1, 33.999622),
    Sketcher.Constraint("DistanceX", -1, 1, 31, 3, 48.999564),
    Sketcher.Constraint("DistanceX", -1, 1, 32, 3, 68.599564),
    Sketcher.Constraint("DistanceX", -1, 1, 33, 3, 39.199782),
    Sketcher.Constraint("DistanceX", -1, 1, 34, 3, 58.799782),
    Sketcher.Constraint("DistanceX", -1, 1, 35, 3, 97.999347),
    Sketcher.Constraint("DistanceX", -1, 1, 36, 3, 117.599347),
    Sketcher.Constraint("DistanceX", -1, 1, 37, 3, 137.199347),
    Sketcher.Constraint("DistanceX", -1, 1, 39, 3, 88.199564),
    Sketcher.Constraint("DistanceX", -1, 1, 40, 3, 107.799564),
    Sketcher.Constraint("DistanceX", -1, 1, 43, 3, 117.599782),
    Sketcher.Constraint("DistanceX", -1, 1, 44, 3, 127.399564),
    Sketcher.Constraint("DistanceX", -1, 1, 45, 3, 146.999564),
])
pad1 = doc.addObject("PartDesign::Pad", "Pad")
body.addObject(pad1)
pad1.Profile = sketch1
pad1.Length = 3

doc.recompute()
